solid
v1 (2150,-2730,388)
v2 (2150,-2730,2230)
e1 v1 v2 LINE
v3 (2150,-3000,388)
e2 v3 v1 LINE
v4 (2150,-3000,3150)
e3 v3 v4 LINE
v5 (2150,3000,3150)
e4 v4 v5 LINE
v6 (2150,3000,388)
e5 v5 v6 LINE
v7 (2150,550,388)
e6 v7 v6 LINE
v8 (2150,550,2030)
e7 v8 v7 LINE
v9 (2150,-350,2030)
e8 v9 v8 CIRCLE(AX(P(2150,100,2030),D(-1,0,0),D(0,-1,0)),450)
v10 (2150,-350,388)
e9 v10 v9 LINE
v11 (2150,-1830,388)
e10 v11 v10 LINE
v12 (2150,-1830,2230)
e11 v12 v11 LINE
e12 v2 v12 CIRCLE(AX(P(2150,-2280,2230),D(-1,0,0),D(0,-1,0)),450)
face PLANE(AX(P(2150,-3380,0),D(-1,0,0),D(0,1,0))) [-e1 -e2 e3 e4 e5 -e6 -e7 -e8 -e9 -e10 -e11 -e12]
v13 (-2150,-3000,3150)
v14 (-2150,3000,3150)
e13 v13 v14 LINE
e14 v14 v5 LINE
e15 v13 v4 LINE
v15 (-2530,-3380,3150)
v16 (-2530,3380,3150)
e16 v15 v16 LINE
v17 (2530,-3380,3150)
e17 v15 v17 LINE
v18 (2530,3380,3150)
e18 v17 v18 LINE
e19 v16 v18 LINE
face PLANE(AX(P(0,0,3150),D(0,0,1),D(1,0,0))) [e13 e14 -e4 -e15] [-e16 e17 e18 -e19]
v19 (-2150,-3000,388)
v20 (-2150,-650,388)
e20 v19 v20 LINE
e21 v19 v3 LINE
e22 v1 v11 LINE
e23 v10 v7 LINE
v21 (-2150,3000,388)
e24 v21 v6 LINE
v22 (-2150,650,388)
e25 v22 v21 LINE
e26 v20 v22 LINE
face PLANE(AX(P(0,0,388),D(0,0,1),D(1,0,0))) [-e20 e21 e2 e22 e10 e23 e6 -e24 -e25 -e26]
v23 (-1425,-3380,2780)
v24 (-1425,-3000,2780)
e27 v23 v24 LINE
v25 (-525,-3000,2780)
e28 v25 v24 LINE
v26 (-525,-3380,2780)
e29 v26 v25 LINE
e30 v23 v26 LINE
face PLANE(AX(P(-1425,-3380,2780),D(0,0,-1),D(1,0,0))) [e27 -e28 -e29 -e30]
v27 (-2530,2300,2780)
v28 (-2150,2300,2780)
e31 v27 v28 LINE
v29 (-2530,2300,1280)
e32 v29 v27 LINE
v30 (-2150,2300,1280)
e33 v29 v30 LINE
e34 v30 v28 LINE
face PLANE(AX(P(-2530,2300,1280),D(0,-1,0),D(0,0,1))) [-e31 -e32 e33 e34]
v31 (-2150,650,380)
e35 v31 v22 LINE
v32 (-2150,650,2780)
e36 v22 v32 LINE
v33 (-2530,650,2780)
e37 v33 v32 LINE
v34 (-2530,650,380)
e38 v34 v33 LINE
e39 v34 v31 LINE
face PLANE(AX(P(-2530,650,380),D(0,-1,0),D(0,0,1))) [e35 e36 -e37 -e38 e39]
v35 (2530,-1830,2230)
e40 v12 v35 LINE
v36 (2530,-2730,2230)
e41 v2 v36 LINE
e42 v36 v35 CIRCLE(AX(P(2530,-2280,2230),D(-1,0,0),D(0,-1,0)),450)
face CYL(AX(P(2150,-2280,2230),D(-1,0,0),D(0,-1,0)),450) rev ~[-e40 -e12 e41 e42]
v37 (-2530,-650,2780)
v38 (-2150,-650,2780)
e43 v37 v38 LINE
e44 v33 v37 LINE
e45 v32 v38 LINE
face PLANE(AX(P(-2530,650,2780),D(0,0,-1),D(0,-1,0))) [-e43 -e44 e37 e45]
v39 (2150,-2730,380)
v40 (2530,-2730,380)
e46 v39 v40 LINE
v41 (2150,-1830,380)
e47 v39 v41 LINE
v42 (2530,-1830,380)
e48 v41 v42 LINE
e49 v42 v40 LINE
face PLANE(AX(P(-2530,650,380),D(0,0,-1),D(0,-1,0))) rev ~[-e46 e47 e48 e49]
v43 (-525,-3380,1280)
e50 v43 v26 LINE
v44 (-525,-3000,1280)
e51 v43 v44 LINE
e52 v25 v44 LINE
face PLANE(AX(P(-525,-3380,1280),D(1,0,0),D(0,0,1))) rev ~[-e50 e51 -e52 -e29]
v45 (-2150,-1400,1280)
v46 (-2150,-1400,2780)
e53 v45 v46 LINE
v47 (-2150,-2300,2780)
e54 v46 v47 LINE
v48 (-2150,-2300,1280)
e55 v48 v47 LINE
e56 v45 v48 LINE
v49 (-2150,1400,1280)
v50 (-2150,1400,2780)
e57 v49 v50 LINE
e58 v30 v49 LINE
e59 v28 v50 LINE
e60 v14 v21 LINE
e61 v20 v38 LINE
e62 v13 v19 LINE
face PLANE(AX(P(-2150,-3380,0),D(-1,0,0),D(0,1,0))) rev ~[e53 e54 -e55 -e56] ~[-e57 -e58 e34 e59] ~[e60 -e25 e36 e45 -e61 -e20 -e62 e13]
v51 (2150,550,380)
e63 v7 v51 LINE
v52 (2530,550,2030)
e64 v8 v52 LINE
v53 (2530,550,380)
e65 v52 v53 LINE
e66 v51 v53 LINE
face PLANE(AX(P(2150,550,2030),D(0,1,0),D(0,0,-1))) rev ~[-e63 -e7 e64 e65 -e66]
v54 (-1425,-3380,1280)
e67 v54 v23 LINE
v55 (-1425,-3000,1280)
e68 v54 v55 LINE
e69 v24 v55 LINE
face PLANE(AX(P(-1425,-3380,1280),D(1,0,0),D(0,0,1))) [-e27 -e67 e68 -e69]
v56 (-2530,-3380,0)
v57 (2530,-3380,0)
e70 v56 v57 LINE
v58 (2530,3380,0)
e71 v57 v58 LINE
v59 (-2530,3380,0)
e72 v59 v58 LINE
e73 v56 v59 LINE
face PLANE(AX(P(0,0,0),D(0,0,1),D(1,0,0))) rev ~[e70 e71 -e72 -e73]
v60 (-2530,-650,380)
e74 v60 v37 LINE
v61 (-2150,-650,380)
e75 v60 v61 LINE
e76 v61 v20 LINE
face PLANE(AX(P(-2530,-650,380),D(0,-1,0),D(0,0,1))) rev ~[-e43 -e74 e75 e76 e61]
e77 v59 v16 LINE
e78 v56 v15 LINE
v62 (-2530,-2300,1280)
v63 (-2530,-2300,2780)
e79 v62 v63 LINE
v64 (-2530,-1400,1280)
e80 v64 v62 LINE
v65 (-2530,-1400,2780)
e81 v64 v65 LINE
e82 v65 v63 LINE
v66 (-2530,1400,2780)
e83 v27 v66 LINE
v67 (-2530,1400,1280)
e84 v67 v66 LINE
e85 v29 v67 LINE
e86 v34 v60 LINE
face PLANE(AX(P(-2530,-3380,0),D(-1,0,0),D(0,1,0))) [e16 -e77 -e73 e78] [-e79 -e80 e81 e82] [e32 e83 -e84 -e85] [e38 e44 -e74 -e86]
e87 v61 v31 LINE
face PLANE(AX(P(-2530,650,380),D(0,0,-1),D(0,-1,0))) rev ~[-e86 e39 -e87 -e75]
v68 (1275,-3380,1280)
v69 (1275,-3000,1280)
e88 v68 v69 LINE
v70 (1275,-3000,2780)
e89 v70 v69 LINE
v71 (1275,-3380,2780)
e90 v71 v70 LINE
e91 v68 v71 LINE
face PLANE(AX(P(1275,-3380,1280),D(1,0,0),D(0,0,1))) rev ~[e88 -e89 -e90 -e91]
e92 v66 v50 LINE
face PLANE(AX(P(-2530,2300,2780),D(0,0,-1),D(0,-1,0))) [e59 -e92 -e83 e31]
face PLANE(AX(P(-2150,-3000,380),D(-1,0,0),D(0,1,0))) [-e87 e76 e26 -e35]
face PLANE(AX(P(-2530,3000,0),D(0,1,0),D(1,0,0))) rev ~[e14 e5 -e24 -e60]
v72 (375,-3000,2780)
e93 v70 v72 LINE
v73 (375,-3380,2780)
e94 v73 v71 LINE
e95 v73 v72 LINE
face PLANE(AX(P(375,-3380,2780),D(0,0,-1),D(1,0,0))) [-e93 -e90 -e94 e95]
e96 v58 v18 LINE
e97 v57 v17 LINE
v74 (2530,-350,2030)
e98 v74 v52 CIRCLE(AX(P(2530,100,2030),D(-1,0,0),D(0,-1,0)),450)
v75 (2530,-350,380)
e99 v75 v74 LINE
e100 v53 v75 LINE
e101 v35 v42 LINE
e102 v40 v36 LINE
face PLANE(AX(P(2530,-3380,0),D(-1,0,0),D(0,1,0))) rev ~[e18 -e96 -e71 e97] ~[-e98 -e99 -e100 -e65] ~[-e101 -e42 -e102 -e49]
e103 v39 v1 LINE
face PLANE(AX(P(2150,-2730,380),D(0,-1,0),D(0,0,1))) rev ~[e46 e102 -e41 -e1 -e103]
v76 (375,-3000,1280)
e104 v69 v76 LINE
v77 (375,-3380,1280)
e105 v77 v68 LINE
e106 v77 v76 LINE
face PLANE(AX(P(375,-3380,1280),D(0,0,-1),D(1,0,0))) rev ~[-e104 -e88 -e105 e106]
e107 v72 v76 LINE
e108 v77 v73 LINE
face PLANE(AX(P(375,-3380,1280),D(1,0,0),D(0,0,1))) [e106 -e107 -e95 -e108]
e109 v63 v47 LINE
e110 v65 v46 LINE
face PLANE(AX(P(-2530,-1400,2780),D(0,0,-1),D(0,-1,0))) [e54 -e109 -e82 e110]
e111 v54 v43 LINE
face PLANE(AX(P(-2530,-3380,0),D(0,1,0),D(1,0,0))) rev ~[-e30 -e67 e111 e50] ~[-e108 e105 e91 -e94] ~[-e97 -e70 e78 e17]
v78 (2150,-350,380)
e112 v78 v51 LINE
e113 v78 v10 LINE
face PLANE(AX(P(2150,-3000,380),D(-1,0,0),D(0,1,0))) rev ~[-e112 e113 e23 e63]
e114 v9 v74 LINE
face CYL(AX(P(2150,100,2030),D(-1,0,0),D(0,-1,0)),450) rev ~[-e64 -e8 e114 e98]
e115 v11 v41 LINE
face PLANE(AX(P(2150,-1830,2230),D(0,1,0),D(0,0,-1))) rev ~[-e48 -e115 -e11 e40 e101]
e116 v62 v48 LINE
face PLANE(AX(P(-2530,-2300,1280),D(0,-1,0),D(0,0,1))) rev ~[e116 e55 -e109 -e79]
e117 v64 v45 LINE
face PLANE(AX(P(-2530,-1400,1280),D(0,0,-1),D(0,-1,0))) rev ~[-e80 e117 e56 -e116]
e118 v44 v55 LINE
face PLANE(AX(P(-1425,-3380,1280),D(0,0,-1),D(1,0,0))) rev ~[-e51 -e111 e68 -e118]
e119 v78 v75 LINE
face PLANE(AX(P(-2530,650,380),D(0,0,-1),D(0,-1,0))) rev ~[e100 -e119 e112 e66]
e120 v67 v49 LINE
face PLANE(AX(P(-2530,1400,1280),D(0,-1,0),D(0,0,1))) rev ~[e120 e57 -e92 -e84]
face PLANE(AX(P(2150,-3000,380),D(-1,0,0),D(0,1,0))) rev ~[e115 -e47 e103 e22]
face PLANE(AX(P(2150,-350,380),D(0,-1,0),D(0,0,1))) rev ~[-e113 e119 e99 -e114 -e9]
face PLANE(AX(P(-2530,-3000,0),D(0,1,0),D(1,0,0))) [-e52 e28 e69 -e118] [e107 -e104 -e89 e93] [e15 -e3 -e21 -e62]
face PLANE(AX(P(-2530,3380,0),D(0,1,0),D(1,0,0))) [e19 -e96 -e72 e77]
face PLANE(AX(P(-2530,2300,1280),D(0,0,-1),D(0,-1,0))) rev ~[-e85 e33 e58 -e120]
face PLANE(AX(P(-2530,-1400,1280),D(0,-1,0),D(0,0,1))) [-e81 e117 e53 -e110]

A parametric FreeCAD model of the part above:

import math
import FreeCAD as App
import Part
import Sketcher
from FreeCAD import Vector
Q = App.Units.Quantity


def faces_at(feature, points):
    """Names of the faces that lie closest to the given points."""
    faces = feature.Shape.Faces
    near = lambda p: min(range(len(faces)), key=lambda i: faces[i].distToShape(Part.Vertex(*p))[0])
    return sorted({f"Face{near(p) + 1}" for p in points})


def add_polygon(sketch, points):
    """Adds a closed chain of lines whose ends are joined by coincident constraints."""
    first, n = sketch.GeometryCount, len(points)
    for a, b in zip(points, points[1:] + points[:1]):
        sketch.addGeometry(Part.LineSegment(App.Vector(*a, 0), App.Vector(*b, 0)), False)
    for i in range(n):
        sketch.addConstraint(Sketcher.Constraint("Coincident", first + i, 2, first + (i + 1) % n, 1))

doc = App.newDocument("Part")
params = doc.addObject("Spreadsheet::Sheet", "Params")
for row, (alias, value) in enumerate([
    ("sketch1_width", "5060 mm"),
    ("sketch1_height", "6760 mm"),
    ("pad1_length", "3150 mm"),
    ("thickness_wall", "380 mm"),
    ("sketch2_width", "1300 mm"),
    ("sketch2_width2", "900 mm"),
    ("sketch2_height", "2400 mm"),
    ("sketch2_height2", "1500 mm"),
    ("pocket1_length", "500 mm"),
    ("sketch3_width", "900 mm"),
    ("sketch3_height", "1500 mm"),
    ("pocket2_length", "500 mm"),
    ("sketch4_radius", "450 mm"),
    ("sketch4_height", "1650 mm"),
    ("sketch4_height2", "1850 mm"),
    ("sketch5_width", "4300 mm"),
    ("sketch5_height", "6000 mm"),
    ("pad2_length", "8 mm"),
], start=1):
    params.set(f"A{row}", alias)
    params.set(f"B{row}", "=" + value)
    params.setAlias(f"B{row}", alias)

body = doc.addObject("PartDesign::Body", "Body")

sketch1 = doc.addObject("Sketcher::SketchObject", "Sketch")
body.addObject(sketch1)
sketch1.AttachmentSupport = (doc.XY_Plane, [""])
sketch1.MapMode = "FlatFace"
add_polygon(sketch1, [(-2530, 3380), (-2530, -3380), (2530, -3380), (2530, 3380)])
sketch1.addConstraint(Sketcher.Constraint("Vertical", 0))
sketch1.addConstraint(Sketcher.Constraint("Horizontal", 1))
sketch1.addConstraint(Sketcher.Constraint("Vertical", 2))
sketch1.addConstraint(Sketcher.Constraint("Horizontal", 3))
sketch1.addConstraint(Sketcher.Constraint("Symmetric", 0, 2, 2, 2, -1, 1))
sketch1.addConstraint(Sketcher.Constraint("DistanceX", 1, 1, 1, 2, Q("5060 mm")))
sketch1.addConstraint(Sketcher.Constraint("DistanceY", 0, 2, 0, 1, Q("6760 mm")))
sketch1.setExpression("Constraints[9]", "Params.sketch1_width")
sketch1.setExpression("Constraints[10]", "Params.sketch1_height")
pad1 = doc.addObject("PartDesign::Pad", "Pad")
body.addObject(pad1)
pad1.Profile = sketch1
pad1.setExpression("Length", "Params.pad1_length")
doc.recompute()

thickness = doc.addObject("PartDesign::Thickness", "Thickness")
body.addObject(thickness)
thickness.Base = (pad1, faces_at(pad1, [(0, 0, 3150)]))
thickness.setExpression("Value", "Params.thickness_wall")
thickness.Reversed = True
thickness.Join = "Arc"

sketch2 = doc.addObject("Sketcher::SketchObject", "Sketch001")
body.addObject(sketch2)
sketch2.AttachmentSupport = (doc.YZ_Plane, [""])
sketch2.MapMode = "FlatFace"
sketch2.AttachmentOffset = App.Placement(Vector(0, 0, -2530), App.Rotation())
add_polygon(sketch2, [(650, 2780), (650, 380), (-650, 380), (-650, 2780)])
add_polygon(sketch2, [(2300, 2780), (2300, 1280), (1400, 1280), (1400, 2780)])
add_polygon(sketch2, [(-1400, 2780), (-1400, 1280), (-2300, 1280), (-2300, 2780)])
sketch2.addConstraint(Sketcher.Constraint("Vertical", 0))
sketch2.addConstraint(Sketcher.Constraint("Horizontal", 1))
sketch2.addConstraint(Sketcher.Constraint("Vertical", 2))
sketch2.addConstraint(Sketcher.Constraint("Horizontal", 3))
sketch2.addConstraint(Sketcher.Constraint("Vertical", 4))
sketch2.addConstraint(Sketcher.Constraint("Horizontal", 5))
sketch2.addConstraint(Sketcher.Constraint("Vertical", 6))
sketch2.addConstraint(Sketcher.Constraint("Horizontal", 7))
sketch2.addConstraint(Sketcher.Constraint("Vertical", 8))
sketch2.addConstraint(Sketcher.Constraint("Horizontal", 9))
sketch2.addConstraint(Sketcher.Constraint("Vertical", 10))
sketch2.addConstraint(Sketcher.Constraint("Horizontal", 11))
sketch2.addConstraint(Sketcher.Constraint("Symmetric", 5, 2, 8, 2, -2))
sketch2.addConstraint(Sketcher.Constraint("Symmetric", 7, 2, 10, 2, -2))
sketch2.addConstraint(Sketcher.Constraint("Horizontal", 3, 2, 6, 2))
sketch2.addConstraint(Sketcher.Constraint("DistanceX", 1, 2, 1, 1, Q("1300 mm")))
sketch2.addConstraint(Sketcher.Constraint("DistanceX", 5, 2, 5, 1, Q("900 mm")))
sketch2.addConstraint(Sketcher.Constraint("DistanceY", 0, 2, 0, 1, Q("2400 mm")))
sketch2.addConstraint(Sketcher.Constraint("DistanceY", 4, 2, 4, 1, Q("1500 mm")))
sketch2.addConstraint(Sketcher.Constraint("DistanceX", -1, 1, 0, 2, Q("650 mm")))
sketch2.addConstraint(Sketcher.Constraint("DistanceY", -1, 1, 0, 2, Q("380 mm")))
sketch2.addConstraint(Sketcher.Constraint("DistanceX", -1, 1, 4, 2, Q("2300 mm")))
sketch2.setExpression("Constraints[27]", "Params.sketch2_width")
sketch2.setExpression("Constraints[28]", "Params.sketch2_width2")
sketch2.setExpression("Constraints[29]", "Params.sketch2_height")
sketch2.setExpression("Constraints[30]", "Params.sketch2_height2")
pocket1 = doc.addObject("PartDesign::Pocket", "Pocket")
body.addObject(pocket1)
pocket1.Profile = sketch2
pocket1.setExpression("Length", "Params.pocket1_length")
pocket1.Reversed = True

sketch3 = doc.addObject("Sketcher::SketchObject", "Sketch002")
body.addObject(sketch3)
sketch3.AttachmentSupport = (doc.XZ_Plane, [""])
sketch3.MapMode = "FlatFace"
sketch3.AttachmentOffset = App.Placement(Vector(0, 0, 3380), App.Rotation())
add_polygon(sketch3, [(-1425, 2780), (-1425, 1280), (-525, 1280), (-525, 2780)])
add_polygon(sketch3, [(375, 2780), (375, 1280), (1275, 1280), (1275, 2780)])
sketch3.addConstraint(Sketcher.Constraint("Vertical", 0))
sketch3.addConstraint(Sketcher.Constraint("Horizontal", 1))
sketch3.addConstraint(Sketcher.Constraint("Vertical", 2))
sketch3.addConstraint(Sketcher.Constraint("Horizontal", 3))
sketch3.addConstraint(Sketcher.Constraint("Vertical", 4))
sketch3.addConstraint(Sketcher.Constraint("Horizontal", 5))
sketch3.addConstraint(Sketcher.Constraint("Vertical", 6))
sketch3.addConstraint(Sketcher.Constraint("Horizontal", 7))
sketch3.addConstraint(Sketcher.Constraint("Horizontal", 1, 2, 4, 2))
sketch3.addConstraint(Sketcher.Constraint("Horizontal", 3, 2, 6, 2))
sketch3.addConstraint(Sketcher.Constraint("Equal", 3, 5))
sketch3.addConstraint(Sketcher.Constraint("DistanceX", 1, 1, 1, 2, Q("900 mm")))
sketch3.addConstraint(Sketcher.Constraint("DistanceY", 0, 2, 0, 1, Q("1500 mm")))
sketch3.addConstraint(Sketcher.Constraint("DistanceX", 0, 2, -1, 1, Q("1425 mm")))
sketch3.addConstraint(Sketcher.Constraint("DistanceY", -1, 1, 0, 2, Q("1280 mm")))
sketch3.addConstraint(Sketcher.Constraint("DistanceX", -1, 1, 4, 2, Q("375 mm")))
sketch3.setExpression("Constraints[19]", "Params.sketch3_width")
sketch3.setExpression("Constraints[20]", "Params.sketch3_height")
pocket2 = doc.addObject("PartDesign::Pocket", "Pocket001")
body.addObject(pocket2)
pocket2.Profile = sketch3
pocket2.setExpression("Length", "Params.pocket2_length")

sketch4 = doc.addObject("Sketcher::SketchObject", "Sketch003")
body.addObject(sketch4)
sketch4.AttachmentSupport = (doc.YZ_Plane, [""])
sketch4.MapMode = "FlatFace"
sketch4.AttachmentOffset = App.Placement(Vector(0, 0, 2150), App.Rotation())
sketch4.addGeometry(Part.LineSegment(Vector(550, 2030, 0), Vector(550, 380, 0)), False)
sketch4.addGeometry(Part.LineSegment(Vector(550, 380, 0), Vector(-350, 380, 0)), False)
sketch4.addGeometry(Part.LineSegment(Vector(-350, 380, 0), Vector(-350, 2030, 0)), False)
sketch4.addGeometry(Part.ArcOfCircle(Part.Circle(Vector(100, 2030, 0), Vector(0, 0, 1), 450), math.radians(0), math.radians(180)), False)
sketch4.addGeometry(Part.LineSegment(Vector(-1830, 2230, 0), Vector(-1830, 380, 0)), False)
sketch4.addGeometry(Part.LineSegment(Vector(-1830, 380, 0), Vector(-2730, 380, 0)), False)
sketch4.addGeometry(Part.LineSegment(Vector(-2730, 380, 0), Vector(-2730, 2230, 0)), False)
sketch4.addGeometry(Part.ArcOfCircle(Part.Circle(Vector(-2280, 2230, 0), Vector(0, 0, 1), 450), math.radians(0), math.radians(180)), False)
sketch4.addConstraint(Sketcher.Constraint("Coincident", 0, 2, 1, 1))
sketch4.addConstraint(Sketcher.Constraint("Coincident", 1, 2, 2, 1))
sketch4.addConstraint(Sketcher.Constraint("Tangent", 2, 2, 3, 2))
sketch4.addConstraint(Sketcher.Constraint("Tangent", 3, 1, 0, 1))
sketch4.addConstraint(Sketcher.Constraint("Coincident", 4, 2, 5, 1))
sketch4.addConstraint(Sketcher.Constraint("Coincident", 5, 2, 6, 1))
sketch4.addConstraint(Sketcher.Constraint("Tangent", 6, 2, 7, 2))
sketch4.addConstraint(Sketcher.Constraint("Tangent", 7, 1, 4, 1))
sketch4.addConstraint(Sketcher.Constraint("Vertical", 0))
sketch4.addConstraint(Sketcher.Constraint("Horizontal", 1))
sketch4.addConstraint(Sketcher.Constraint("Vertical", 2))
sketch4.addConstraint(Sketcher.Constraint("Vertical", 4))
sketch4.addConstraint(Sketcher.Constraint("Horizontal", 5))
sketch4.addConstraint(Sketcher.Constraint("Vertical", 6))
sketch4.addConstraint(Sketcher.Constraint("Equal", 3, 7))
sketch4.addConstraint(Sketcher.Constraint("Horizontal", 1, 2, 4, 2))
sketch4.addConstraint(Sketcher.Constraint("Radius", 3, Q("450 mm")))
sketch4.addConstraint(Sketcher.Constraint("DistanceY", 0, 2, 0, 1, Q("1650 mm")))
sketch4.addConstraint(Sketcher.Constraint("DistanceY", 4, 2, 4, 1, Q("1850 mm")))
sketch4.addConstraint(Sketcher.Constraint("DistanceX", -1, 1, 3, 3, Q("100 mm")))
sketch4.addConstraint(Sketcher.Constraint("DistanceY", -1, 1, 3, 3, Q("2030 mm")))
sketch4.addConstraint(Sketcher.Constraint("DistanceX", 7, 3, -1, 1, Q("2280 mm")))
sketch4.setExpression("Constraints[16]", "Params.sketch4_radius")
sketch4.setExpression("Constraints[17]", "Params.sketch4_height")
sketch4.setExpression("Constraints[18]", "Params.sketch4_height2")
pocket3 = doc.addObject("PartDesign::Pocket", "Pocket002")
body.addObject(pocket3)
pocket3.Profile = sketch4
pocket3.Type = "ThroughAll"
pocket3.Reversed = True

sketch5 = doc.addObject("Sketcher::SketchObject", "Sketch004")
body.addObject(sketch5)
sketch5.AttachmentSupport = (doc.XY_Plane, [""])
sketch5.MapMode = "FlatFace"
sketch5.AttachmentOffset = App.Placement(Vector(0, 0, 380), App.Rotation())
add_polygon(sketch5, [(-2150, 3000), (-2150, -3000), (2150, -3000), (2150, 3000)])
sketch5.addConstraint(Sketcher.Constraint("Vertical", 0))
sketch5.addConstraint(Sketcher.Constraint("Horizontal", 1))
sketch5.addConstraint(Sketcher.Constraint("Vertical", 2))
sketch5.addConstraint(Sketcher.Constraint("Horizontal", 3))
sketch5.addConstraint(Sketcher.Constraint("Symmetric", 0, 2, 2, 2, -1, 1))
sketch5.addConstraint(Sketcher.Constraint("DistanceX", 1, 1, 1, 2, Q("4300 mm")))
sketch5.addConstraint(Sketcher.Constraint("DistanceY", 0, 2, 0, 1, Q("6000 mm")))
sketch5.setExpression("Constraints[9]", "Params.sketch5_width")
sketch5.setExpression("Constraints[10]", "Params.sketch5_height")
pad2 = doc.addObject("PartDesign::Pad", "Pad001")
body.addObject(pad2)
pad2.Profile = sketch5
pad2.setExpression("Length", "Params.pad2_length")

doc.recompute()
